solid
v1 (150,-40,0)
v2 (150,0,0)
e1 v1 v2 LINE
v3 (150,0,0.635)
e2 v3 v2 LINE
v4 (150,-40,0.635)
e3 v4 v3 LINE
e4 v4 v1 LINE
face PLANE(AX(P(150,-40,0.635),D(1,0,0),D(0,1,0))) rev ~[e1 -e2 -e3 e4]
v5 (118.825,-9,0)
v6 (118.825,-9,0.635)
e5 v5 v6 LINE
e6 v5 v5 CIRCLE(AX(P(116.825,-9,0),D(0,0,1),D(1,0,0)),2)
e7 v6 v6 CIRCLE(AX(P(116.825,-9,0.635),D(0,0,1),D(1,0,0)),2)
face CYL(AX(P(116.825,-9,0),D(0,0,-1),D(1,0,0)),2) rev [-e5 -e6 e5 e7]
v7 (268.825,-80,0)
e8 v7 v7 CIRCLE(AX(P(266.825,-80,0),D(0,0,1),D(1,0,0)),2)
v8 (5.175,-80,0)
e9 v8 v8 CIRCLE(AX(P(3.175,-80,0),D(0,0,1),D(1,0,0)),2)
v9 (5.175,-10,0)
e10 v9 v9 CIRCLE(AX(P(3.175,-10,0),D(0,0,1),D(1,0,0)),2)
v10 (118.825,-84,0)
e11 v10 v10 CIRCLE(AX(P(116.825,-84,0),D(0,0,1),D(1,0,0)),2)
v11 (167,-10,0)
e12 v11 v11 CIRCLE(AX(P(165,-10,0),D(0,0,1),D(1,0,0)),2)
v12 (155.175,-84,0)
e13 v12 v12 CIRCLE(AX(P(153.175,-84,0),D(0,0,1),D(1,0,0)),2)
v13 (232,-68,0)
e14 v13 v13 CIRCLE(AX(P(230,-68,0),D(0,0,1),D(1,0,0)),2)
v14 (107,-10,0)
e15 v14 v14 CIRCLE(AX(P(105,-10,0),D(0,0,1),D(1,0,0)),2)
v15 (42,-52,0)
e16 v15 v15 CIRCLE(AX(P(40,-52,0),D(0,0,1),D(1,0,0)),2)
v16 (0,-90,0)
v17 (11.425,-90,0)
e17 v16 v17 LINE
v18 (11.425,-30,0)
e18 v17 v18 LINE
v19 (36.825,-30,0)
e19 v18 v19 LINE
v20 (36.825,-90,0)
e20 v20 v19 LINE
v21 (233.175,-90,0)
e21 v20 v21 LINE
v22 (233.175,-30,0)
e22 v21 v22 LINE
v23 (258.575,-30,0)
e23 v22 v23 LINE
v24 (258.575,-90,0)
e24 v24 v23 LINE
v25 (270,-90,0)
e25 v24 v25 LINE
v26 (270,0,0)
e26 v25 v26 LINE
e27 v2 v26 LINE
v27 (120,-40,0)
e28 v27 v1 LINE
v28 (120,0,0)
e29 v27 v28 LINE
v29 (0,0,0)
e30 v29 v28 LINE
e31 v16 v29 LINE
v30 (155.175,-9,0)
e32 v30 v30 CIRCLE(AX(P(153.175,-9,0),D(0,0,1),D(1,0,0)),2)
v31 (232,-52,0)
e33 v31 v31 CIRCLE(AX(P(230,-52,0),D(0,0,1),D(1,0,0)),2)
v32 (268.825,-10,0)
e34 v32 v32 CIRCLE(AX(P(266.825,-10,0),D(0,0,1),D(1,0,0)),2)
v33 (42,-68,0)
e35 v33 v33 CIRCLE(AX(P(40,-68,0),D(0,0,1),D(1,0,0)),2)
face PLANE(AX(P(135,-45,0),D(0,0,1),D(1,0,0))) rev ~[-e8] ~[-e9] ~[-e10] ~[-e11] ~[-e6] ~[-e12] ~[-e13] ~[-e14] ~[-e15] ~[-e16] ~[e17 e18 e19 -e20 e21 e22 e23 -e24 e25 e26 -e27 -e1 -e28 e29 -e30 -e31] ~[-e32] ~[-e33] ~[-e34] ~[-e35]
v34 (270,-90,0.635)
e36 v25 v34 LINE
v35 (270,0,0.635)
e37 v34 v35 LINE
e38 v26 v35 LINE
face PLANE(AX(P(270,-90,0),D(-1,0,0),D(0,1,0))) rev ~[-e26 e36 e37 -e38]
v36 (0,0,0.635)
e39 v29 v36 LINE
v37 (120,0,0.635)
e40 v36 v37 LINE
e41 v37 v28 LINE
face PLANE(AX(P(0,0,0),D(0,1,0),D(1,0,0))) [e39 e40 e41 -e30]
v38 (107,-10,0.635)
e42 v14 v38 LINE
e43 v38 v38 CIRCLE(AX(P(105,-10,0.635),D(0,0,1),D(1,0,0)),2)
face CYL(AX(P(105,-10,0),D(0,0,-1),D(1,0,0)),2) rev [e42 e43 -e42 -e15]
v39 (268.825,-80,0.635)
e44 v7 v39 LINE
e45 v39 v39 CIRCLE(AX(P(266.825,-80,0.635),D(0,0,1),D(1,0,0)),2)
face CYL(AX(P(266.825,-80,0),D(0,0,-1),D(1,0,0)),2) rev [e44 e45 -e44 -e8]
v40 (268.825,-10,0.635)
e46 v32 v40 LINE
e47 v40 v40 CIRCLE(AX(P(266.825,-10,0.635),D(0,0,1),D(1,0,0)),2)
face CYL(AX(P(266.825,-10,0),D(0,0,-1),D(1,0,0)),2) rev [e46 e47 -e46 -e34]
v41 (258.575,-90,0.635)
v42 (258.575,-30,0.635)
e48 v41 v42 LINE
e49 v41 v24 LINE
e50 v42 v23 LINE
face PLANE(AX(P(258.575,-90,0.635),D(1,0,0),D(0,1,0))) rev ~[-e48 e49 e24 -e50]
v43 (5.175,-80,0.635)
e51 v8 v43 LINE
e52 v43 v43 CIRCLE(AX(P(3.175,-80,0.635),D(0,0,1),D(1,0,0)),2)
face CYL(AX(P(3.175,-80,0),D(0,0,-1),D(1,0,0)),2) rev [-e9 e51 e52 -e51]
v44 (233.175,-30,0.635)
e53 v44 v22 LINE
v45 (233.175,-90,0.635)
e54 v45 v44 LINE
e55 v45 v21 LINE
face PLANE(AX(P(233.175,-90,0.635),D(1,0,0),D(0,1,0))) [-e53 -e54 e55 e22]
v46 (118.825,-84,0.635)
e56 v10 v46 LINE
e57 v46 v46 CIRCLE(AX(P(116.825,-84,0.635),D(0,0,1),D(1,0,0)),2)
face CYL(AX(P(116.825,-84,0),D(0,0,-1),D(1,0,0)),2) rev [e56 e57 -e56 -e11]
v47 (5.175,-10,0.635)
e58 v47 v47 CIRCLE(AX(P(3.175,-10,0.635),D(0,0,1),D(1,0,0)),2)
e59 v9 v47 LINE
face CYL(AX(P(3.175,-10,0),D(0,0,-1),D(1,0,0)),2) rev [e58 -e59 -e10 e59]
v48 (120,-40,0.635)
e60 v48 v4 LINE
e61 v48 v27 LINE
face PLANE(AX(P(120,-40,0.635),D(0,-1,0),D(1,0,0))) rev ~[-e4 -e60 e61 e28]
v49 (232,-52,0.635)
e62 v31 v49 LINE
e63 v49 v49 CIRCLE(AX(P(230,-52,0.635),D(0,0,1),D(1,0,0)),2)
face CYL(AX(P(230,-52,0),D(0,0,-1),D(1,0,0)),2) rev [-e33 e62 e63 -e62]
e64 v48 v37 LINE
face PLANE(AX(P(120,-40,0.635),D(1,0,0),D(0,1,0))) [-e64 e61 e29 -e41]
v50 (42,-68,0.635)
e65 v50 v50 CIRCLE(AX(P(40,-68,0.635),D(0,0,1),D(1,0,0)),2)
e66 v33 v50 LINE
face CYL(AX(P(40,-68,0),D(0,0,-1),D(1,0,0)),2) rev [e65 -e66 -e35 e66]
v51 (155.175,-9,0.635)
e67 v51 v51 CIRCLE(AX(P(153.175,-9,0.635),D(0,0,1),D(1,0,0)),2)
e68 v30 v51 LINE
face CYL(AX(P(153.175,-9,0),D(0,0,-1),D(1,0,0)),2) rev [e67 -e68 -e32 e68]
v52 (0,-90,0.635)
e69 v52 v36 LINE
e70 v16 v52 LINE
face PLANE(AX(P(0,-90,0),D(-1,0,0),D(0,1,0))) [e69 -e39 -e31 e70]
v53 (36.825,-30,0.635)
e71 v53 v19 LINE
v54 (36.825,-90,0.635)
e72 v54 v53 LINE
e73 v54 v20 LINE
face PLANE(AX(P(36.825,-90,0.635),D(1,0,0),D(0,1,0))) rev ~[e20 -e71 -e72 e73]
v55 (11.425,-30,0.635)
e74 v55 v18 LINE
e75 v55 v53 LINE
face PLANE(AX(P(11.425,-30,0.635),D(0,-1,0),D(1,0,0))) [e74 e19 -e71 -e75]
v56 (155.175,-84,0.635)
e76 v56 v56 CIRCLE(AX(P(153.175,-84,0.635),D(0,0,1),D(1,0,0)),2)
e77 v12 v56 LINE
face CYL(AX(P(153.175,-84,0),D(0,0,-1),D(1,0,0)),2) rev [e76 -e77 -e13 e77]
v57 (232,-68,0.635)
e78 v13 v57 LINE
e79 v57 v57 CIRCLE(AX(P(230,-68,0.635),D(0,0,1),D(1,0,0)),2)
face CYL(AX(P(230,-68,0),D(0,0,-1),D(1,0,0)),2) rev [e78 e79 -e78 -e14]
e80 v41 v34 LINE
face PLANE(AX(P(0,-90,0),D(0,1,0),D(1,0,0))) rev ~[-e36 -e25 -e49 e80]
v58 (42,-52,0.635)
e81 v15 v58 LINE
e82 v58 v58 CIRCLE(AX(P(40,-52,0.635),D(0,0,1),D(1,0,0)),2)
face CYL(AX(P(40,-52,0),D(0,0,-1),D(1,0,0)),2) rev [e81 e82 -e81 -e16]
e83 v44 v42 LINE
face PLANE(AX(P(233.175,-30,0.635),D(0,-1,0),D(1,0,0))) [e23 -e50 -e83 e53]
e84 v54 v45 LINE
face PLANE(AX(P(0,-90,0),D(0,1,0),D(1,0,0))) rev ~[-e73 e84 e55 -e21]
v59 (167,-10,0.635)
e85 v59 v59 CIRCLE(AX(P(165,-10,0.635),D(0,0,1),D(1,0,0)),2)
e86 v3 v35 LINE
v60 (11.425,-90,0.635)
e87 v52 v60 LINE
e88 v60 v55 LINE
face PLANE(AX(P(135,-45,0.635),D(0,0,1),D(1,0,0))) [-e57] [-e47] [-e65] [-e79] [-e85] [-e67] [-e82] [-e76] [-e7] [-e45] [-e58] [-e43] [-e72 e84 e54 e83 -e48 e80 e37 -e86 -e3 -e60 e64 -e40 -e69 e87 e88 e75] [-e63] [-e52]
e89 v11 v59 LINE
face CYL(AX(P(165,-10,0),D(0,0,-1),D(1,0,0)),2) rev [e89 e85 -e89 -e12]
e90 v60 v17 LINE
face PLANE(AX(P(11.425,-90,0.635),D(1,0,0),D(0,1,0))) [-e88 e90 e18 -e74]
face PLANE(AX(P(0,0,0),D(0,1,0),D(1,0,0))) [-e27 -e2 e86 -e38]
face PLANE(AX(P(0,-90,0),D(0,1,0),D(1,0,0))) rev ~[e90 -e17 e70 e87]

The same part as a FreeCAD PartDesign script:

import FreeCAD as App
import Part
import Sketcher

V = App.Vector


def add_polygon(sketch, points):
    """Adds a closed chain of lines whose ends are joined by coincident constraints."""
    first, n = sketch.GeometryCount, len(points)
    for a, b in zip(points, points[1:] + points[:1]):
        sketch.addGeometry(Part.LineSegment(App.Vector(*a, 0), App.Vector(*b, 0)), False)
    for i in range(n):
        sketch.addConstraint(Sketcher.Constraint("Coincident", first + i, 2, first + (i + 1) % n, 1))

doc = App.newDocument("Part")
body = doc.addObject("PartDesign::Body", "Body")

# Sketch on XY plane
sketch1 = body.newObject("Sketcher::SketchObject", "Sketch")
sketch1.AttachmentSupport = (doc.getObject("XY_Plane"), [""])
sketch1.MapMode = "FlatFace"
add_polygon(sketch1, [(0, 0), (0, -90), (270, -90), (270, 0)])  # lines 0-3
sketch1.addGeometry(Part.Circle(V(3.2, -80, 0), V(0, 0, 1), 2), False)  # 4
sketch1.addGeometry(Part.Circle(V(40, -68, 0), V(0, 0, 1), 2), False)  # 5
sketch1.addGeometry(Part.Circle(V(116.8, -84, 0), V(0, 0, 1), 2), False)  # 6
sketch1.addGeometry(Part.Circle(V(40, -52, 0), V(0, 0, 1), 2), False)  # 7
sketch1.addGeometry(Part.Circle(V(153.2, -84, 0), V(0, 0, 1), 2), False)  # 8
sketch1.addGeometry(Part.Circle(V(266.8, -80, 0), V(0, 0, 1), 2), False)  # 9
sketch1.addGeometry(Part.Circle(V(230, -68, 0), V(0, 0, 1), 2), False)  # 10
sketch1.addGeometry(Part.Circle(V(230, -52, 0), V(0, 0, 1), 2), False)  # 11
sketch1.addGeometry(Part.Circle(V(3.2, -10, 0), V(0, 0, 1), 2), False)  # 12
sketch1.addGeometry(Part.Circle(V(105, -10, 0), V(0, 0, 1), 2), False)  # 13
sketch1.addGeometry(Part.Circle(V(116.8, -9, 0), V(0, 0, 1), 2), False)  # 14
sketch1.addGeometry(Part.Circle(V(165, -10, 0), V(0, 0, 1), 2), False)  # 15
sketch1.addGeometry(Part.Circle(V(153.2, -9, 0), V(0, 0, 1), 2), False)  # 16
sketch1.addGeometry(Part.Circle(V(266.8, -10, 0), V(0, 0, 1), 2), False)  # 17
sketch1.addConstraint([
    Sketcher.Constraint("Vertical", 0),
    Sketcher.Constraint("Horizontal", 1),
    Sketcher.Constraint("Vertical", 2),
    Sketcher.Constraint("Horizontal", 3),
    Sketcher.Constraint("Coincident", 3, 2, -1, 1),
    Sketcher.Constraint("Equal", 4, 5),
    Sketcher.Constraint("Equal", 5, 6),
    Sketcher.Constraint("Equal", 6, 7),
    Sketcher.Constraint("Equal", 7, 8),
    Sketcher.Constraint("Equal", 8, 9),
    Sketcher.Constraint("Equal", 9, 10),
    Sketcher.Constraint("Equal", 10, 11),
    Sketcher.Constraint("Equal", 11, 12),
    Sketcher.Constraint("Equal", 12, 13),
    Sketcher.Constraint("Equal", 13, 14),
    Sketcher.Constraint("Equal", 14, 15),
    Sketcher.Constraint("Equal", 15, 16),
    Sketcher.Constraint("Equal", 16, 17),
    Sketcher.Constraint("Horizontal", 6, 3, 8, 3),
    Sketcher.Constraint("Horizontal", 4, 3, 9, 3),
    Sketcher.Constraint("Horizontal", 5, 3, 10, 3),
    Sketcher.Constraint("Horizontal", 7, 3, 11, 3),
    Sketcher.Constraint("Horizontal", 12, 3, 13, 3),
    Sketcher.Constraint("Horizontal", 13, 3, 15, 3),
    Sketcher.Constraint("Horizontal", 14, 3, 16, 3),
    Sketcher.Constraint("Horizontal", 15, 3, 17, 3),
    Sketcher.Constraint("Vertical", 5, 3, 7, 3),
    Sketcher.Constraint("Vertical", 10, 3, 11, 3),
    Sketcher.Constraint("Vertical", 4, 3, 12, 3),
    Sketcher.Constraint("Vertical", 6, 3, 14, 3),
    Sketcher.Constraint("Vertical", 8, 3, 16, 3),
    Sketcher.Constraint("Vertical", 9, 3, 17, 3),
    Sketcher.Constraint("Diameter", 4, 4.0),
    Sketcher.Constraint("DistanceX", 1, 1, 1, 2, 270.0),
    Sketcher.Constraint("DistanceY", 0, 2, 0, 1, 90.0),
    Sketcher.Constraint("DistanceY", 4, 3, -1, 1, 80.0),
    Sketcher.Constraint("DistanceX", -1, 1, 5, 3, 40.0),
    Sketcher.Constraint("DistanceY", 5, 3, -1, 1, 68.0),
    Sketcher.Constraint("DistanceY", 6, 3, -1, 1, 84.0),
    Sketcher.Constraint("DistanceY", 7, 3, -1, 1, 52.0),
    Sketcher.Constraint("DistanceX", -1, 1, 10, 3, 230.0),
    Sketcher.Constraint("DistanceY", 12, 3, -1, 1, 10.0),
    Sketcher.Constraint("DistanceX", -1, 1, 13, 3, 105.0),
    Sketcher.Constraint("DistanceY", 14, 3, -1, 1, 9.0),
    Sketcher.Constraint("DistanceX", -1, 1, 15, 3, 165.0),
    Sketcher.Constraint("DistanceX", 4, 3, 8, 3, 150.0),
    Sketcher.Constraint("DistanceX", 6, 3, 9, 3, 150.0),
    Sketcher.Constraint("DistanceX", 4, 3, 6, 3, 113.65),
    Sketcher.Constraint("DistanceX", -1, 1, 4, 3, 3.175),
])
pad1 = body.newObject("PartDesign::Pad", "Pad")
pad1.Profile = sketch1
pad1.Length = 0.635

# Sketch on XY plane
sketch2 = body.newObject("Sketcher::SketchObject", "Sketch001")
sketch2.AttachmentSupport = (doc.getObject("XY_Plane"), [""])
sketch2.MapMode = "FlatFace"
sketch2.AttachmentOffset = App.Placement(V(0, 0, 0.635), App.Rotation())
add_polygon(sketch2, [(120, 0), (120, -40), (150, -40), (150, 0)])  # lines 0-3
add_polygon(sketch2, [(11, -30), (11, -90), (37, -90), (37, -30)])  # lines 4-7
add_polygon(sketch2, [(233, -30), (233, -90), (259, -90), (259, -30)])  # lines 8-11
sketch2.addConstraint([
    Sketcher.Constraint("Vertical", 0),
    Sketcher.Constraint("Horizontal", 1),
    Sketcher.Constraint("Vertical", 2),
    Sketcher.Constraint("Horizontal", 3),
    Sketcher.Constraint("Vertical", 4),
    Sketcher.Constraint("Horizontal", 5),
    Sketcher.Constraint("Vertical", 6),
    Sketcher.Constraint("Horizontal", 7),
    Sketcher.Constraint("Vertical", 8),
    Sketcher.Constraint("Horizontal", 9),
    Sketcher.Constraint("Vertical", 10),
    Sketcher.Constraint("Horizontal", 11),
    Sketcher.Constraint("PointOnObject", 2, 2, -1),
    Sketcher.Constraint("Horizontal", 5, 2, 8, 2),
    Sketcher.Constraint("Horizontal", 7, 2, 10, 2),
    Sketcher.Constraint("Equal", 7, 9),
    Sketcher.Constraint("DistanceX", 1, 1, 1, 2, 30.0),
    Sketcher.Constraint("DistanceY", 0, 2, 0, 1, 40.0),
    Sketcher.Constraint("DistanceY", 4, 2, 4, 1, 60.0),
    Sketcher.Constraint("DistanceX", 5, 1, 5, 2, 25.4),
    Sketcher.Constraint("DistanceX", -1, 1, 0, 2, 120.0),
    Sketcher.Constraint("DistanceY", 4, 2, -1, 1, 90.0),
    Sketcher.Constraint("DistanceX", 5, 2, 8, 2, 196.35),
    Sketcher.Constraint("DistanceX", -1, 1, 4, 2, 11.425),
])
pocket1 = body.newObject("PartDesign::Pocket", "Pocket")
pocket1.Profile = sketch2
pocket1.Type = "ThroughAll"

doc.recompute()
